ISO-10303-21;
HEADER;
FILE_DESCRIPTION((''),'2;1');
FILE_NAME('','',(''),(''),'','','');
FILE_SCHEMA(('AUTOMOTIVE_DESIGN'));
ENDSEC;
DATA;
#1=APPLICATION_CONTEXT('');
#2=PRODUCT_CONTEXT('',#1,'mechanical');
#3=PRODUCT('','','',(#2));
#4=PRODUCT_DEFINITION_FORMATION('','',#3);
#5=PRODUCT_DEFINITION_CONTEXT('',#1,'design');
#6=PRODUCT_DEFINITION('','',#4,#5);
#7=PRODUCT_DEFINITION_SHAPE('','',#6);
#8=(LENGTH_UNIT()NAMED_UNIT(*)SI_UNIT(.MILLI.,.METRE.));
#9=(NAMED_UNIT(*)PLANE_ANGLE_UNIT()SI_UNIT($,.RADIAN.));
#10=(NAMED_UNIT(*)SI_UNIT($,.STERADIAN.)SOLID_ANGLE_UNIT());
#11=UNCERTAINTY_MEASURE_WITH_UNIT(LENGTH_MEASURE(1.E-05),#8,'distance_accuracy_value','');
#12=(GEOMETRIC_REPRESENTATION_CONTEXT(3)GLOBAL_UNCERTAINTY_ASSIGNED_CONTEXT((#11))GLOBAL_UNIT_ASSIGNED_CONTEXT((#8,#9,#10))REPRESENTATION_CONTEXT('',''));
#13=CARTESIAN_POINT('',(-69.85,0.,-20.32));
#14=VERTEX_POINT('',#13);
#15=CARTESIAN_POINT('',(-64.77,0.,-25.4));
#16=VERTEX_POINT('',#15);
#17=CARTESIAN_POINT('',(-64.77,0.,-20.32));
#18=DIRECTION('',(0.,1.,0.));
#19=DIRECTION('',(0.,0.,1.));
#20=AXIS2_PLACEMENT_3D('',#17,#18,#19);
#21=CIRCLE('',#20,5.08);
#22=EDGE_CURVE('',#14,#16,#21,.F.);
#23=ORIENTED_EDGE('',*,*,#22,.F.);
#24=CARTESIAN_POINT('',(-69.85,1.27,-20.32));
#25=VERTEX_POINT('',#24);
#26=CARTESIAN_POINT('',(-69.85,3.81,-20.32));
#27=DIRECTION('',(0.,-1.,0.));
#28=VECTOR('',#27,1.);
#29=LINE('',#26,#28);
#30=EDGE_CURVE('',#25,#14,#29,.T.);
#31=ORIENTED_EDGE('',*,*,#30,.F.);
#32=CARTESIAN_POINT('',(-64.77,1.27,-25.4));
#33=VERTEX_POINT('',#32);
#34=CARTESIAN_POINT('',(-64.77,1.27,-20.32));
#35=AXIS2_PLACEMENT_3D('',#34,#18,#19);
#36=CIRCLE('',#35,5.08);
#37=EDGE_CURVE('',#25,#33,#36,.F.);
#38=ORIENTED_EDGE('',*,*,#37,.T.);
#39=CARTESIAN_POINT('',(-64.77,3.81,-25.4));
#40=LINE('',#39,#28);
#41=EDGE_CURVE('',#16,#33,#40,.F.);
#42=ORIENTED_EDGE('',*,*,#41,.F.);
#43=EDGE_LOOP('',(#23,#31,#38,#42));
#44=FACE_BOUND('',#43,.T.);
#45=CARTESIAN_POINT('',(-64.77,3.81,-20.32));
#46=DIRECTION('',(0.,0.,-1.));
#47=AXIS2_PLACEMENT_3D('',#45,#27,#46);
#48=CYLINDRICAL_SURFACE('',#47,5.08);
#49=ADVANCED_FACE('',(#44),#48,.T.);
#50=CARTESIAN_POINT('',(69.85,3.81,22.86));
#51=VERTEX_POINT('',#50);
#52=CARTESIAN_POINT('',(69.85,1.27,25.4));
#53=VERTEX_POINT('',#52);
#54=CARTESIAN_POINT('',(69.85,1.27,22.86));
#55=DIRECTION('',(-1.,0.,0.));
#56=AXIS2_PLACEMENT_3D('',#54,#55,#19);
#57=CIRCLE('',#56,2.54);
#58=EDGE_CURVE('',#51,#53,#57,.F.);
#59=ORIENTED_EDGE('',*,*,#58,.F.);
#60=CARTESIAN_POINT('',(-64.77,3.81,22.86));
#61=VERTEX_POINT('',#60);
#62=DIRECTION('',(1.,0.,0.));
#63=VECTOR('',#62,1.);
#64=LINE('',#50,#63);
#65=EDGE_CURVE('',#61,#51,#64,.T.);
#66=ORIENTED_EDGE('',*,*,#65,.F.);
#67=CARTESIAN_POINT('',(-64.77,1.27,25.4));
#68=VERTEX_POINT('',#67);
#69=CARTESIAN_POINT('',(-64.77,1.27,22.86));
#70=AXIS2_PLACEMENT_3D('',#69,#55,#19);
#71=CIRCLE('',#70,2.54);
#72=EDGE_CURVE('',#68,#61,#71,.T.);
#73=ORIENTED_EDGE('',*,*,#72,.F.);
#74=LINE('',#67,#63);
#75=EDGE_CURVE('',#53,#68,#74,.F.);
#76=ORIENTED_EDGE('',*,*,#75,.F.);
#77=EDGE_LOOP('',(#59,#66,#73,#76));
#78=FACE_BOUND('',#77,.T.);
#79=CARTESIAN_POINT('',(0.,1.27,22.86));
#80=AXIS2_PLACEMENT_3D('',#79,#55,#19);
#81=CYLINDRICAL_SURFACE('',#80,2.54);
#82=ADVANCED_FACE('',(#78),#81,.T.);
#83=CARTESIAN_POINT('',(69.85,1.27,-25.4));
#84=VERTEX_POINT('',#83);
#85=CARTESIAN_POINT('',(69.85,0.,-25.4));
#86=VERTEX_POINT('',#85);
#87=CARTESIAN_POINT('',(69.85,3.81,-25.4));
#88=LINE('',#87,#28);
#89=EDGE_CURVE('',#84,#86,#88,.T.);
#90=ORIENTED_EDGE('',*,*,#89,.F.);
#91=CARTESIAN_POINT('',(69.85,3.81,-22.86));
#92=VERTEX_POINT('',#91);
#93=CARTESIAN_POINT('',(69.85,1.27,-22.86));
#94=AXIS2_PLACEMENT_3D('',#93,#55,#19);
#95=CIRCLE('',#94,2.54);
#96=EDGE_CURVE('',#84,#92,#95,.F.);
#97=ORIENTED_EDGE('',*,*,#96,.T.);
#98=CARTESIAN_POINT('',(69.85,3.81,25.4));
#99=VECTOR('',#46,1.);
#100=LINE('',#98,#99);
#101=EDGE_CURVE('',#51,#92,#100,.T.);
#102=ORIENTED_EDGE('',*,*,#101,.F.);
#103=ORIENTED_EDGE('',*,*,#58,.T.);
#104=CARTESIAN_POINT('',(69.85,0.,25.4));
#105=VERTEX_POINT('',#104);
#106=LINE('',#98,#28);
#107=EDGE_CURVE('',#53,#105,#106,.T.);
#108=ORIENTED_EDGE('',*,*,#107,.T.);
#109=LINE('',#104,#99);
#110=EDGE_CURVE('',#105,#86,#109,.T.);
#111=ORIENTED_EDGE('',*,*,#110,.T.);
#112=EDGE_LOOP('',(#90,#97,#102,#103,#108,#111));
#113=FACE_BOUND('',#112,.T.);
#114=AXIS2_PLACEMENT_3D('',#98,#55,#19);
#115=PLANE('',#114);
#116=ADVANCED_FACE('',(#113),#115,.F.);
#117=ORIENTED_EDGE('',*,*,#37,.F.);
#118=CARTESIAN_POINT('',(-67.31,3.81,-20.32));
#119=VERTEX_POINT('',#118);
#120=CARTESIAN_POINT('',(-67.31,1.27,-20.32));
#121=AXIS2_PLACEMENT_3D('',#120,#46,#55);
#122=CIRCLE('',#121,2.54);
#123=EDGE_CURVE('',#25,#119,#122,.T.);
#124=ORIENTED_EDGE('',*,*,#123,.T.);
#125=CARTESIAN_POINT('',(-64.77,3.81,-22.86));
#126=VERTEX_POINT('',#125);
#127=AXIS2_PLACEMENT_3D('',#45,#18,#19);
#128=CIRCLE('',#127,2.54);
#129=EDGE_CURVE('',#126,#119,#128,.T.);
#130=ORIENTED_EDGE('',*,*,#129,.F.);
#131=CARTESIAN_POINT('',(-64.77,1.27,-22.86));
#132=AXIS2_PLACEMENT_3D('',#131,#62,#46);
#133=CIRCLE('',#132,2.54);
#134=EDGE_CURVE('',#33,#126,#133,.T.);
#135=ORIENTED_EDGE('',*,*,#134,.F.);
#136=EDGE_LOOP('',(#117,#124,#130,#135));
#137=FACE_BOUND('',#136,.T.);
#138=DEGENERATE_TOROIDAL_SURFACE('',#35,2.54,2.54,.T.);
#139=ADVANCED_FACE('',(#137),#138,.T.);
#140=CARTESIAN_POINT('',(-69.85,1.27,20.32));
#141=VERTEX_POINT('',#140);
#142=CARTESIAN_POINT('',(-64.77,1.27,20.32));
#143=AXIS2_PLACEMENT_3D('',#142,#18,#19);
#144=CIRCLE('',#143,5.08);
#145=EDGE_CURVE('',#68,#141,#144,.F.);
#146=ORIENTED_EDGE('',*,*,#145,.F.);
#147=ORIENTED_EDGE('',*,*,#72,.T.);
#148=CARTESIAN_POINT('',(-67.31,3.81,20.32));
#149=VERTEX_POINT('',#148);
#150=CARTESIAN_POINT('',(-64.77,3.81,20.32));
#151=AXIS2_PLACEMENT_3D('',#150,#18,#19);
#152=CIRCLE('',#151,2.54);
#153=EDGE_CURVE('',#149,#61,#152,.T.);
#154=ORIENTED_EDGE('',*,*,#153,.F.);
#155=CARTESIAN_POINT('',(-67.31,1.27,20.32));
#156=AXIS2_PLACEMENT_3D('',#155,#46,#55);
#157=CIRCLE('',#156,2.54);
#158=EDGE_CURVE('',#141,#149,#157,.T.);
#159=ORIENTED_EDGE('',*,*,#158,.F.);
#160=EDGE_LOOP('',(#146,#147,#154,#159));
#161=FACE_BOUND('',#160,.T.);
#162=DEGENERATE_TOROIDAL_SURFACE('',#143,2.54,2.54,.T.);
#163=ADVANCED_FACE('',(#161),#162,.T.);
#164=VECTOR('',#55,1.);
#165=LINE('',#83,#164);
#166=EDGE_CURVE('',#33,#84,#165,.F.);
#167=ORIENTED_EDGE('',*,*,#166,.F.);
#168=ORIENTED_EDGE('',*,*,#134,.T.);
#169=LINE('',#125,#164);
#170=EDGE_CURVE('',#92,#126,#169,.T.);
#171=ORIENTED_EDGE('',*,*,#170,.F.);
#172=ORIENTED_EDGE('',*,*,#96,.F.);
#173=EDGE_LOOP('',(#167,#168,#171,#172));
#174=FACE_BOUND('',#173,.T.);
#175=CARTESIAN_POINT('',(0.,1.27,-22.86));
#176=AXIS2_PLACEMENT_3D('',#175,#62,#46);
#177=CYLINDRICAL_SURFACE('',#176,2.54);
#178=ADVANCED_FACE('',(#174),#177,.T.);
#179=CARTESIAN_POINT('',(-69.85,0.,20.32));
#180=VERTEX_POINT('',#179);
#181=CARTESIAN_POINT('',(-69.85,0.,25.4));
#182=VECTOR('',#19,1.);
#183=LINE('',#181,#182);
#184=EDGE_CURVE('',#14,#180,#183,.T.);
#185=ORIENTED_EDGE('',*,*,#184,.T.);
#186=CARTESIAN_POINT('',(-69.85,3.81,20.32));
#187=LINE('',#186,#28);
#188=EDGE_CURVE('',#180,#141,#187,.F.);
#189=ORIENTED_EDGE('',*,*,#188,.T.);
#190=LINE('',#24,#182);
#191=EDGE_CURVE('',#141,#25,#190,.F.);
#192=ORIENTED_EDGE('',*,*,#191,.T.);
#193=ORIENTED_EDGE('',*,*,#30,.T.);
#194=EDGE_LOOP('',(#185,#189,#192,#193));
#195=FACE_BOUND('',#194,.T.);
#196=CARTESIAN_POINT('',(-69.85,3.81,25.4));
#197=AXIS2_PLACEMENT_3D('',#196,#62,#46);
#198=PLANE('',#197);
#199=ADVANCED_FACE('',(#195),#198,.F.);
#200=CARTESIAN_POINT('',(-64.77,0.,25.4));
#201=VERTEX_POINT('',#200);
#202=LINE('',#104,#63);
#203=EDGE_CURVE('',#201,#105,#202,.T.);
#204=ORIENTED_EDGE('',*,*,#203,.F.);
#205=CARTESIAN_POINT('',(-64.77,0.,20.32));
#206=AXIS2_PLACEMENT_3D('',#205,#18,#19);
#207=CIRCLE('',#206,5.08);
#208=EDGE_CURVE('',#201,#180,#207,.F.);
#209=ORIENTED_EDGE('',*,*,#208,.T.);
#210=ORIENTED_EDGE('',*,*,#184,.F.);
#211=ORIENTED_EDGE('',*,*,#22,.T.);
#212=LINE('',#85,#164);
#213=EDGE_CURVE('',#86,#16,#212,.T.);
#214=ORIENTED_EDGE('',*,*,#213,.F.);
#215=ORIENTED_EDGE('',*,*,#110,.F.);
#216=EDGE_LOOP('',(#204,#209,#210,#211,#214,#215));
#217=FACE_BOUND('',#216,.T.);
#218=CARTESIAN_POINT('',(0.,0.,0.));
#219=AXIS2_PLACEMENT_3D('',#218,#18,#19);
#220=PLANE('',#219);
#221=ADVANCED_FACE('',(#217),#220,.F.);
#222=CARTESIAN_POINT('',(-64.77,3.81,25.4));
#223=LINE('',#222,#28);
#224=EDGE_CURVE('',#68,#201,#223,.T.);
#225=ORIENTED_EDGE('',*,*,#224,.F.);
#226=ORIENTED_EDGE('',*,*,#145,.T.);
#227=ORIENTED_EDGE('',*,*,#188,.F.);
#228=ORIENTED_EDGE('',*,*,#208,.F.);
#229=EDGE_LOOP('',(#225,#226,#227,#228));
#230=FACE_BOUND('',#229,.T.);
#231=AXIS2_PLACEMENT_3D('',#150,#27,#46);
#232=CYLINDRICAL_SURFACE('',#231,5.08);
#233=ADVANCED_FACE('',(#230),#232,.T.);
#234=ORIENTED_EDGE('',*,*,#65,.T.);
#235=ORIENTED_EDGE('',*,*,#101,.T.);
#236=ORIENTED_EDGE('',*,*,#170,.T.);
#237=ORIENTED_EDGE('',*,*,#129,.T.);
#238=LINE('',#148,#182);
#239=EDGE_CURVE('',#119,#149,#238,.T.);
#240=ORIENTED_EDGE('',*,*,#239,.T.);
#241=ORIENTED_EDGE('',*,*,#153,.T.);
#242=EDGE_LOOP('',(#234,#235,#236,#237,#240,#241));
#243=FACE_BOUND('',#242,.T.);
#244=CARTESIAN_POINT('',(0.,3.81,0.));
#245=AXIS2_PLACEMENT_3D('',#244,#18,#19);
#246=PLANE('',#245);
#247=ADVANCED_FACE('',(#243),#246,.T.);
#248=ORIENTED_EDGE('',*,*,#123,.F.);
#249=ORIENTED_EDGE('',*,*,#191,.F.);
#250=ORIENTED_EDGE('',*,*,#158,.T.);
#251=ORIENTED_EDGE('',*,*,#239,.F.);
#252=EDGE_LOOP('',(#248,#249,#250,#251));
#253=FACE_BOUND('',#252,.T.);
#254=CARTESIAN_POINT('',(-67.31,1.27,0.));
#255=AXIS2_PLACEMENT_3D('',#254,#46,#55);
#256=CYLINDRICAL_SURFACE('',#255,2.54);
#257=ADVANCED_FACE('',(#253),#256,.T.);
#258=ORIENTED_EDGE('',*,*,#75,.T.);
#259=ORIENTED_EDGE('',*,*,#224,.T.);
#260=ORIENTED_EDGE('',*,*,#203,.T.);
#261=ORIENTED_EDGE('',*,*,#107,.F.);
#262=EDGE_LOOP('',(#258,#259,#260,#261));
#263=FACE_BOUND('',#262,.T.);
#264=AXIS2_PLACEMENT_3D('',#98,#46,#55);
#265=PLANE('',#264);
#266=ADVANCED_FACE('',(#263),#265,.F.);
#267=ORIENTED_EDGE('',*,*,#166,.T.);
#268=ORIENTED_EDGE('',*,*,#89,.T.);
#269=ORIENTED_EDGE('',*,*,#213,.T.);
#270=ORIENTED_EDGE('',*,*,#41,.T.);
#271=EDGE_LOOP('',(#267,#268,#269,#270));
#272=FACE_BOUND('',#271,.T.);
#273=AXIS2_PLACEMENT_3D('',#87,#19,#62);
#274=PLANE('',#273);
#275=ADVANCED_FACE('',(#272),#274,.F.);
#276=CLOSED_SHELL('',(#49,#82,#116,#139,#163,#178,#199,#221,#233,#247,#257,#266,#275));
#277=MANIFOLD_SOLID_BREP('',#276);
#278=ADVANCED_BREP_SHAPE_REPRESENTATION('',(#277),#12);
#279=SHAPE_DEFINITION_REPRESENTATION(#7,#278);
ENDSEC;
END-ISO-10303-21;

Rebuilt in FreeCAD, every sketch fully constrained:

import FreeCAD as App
import Part
import Sketcher

V = App.Vector
Q = App.Units.Quantity


def edges_at(feature, points):
    """Names of the edges that pass closest to the given points."""
    edges = feature.Shape.Edges
    near = lambda p: min(range(len(edges)), key=lambda i: edges[i].distToShape(Part.Vertex(*p))[0])
    return sorted({f"Edge{near(p) + 1}" for p in points})

doc = App.newDocument("Part")
body = doc.addObject("PartDesign::Body", "Body")

sketch1 = body.newObject("Sketcher::SketchObject", "Sketch")
sketch1.AttachmentSupport = (doc.getObject("XZ_Plane"), [""])
sketch1.MapMode = "FlatFace"
sketch1.addGeometry([
    Part.LineSegment(V(-70, -25, 0), V(-70, 25, 0)),
    Part.LineSegment(V(-70, 25, 0), V(70, 25, 0)),
    Part.LineSegment(V(70, 25, 0), V(70, -25, 0)),
    Part.LineSegment(V(70, -25, 0), V(-70, -25, 0)),
], False)
sketch1.addConstraint([
    Sketcher.Constraint("Coincident", 0, 2, 1, 1),
    Sketcher.Constraint("Coincident", 1, 2, 2, 1),
    Sketcher.Constraint("Coincident", 2, 2, 3, 1),
    Sketcher.Constraint("Coincident", 3, 2, 0, 1),
    Sketcher.Constraint("Vertical", 0),
    Sketcher.Constraint("Horizontal", 1),
    Sketcher.Constraint("Vertical", 2),
    Sketcher.Constraint("Horizontal", 3),
    Sketcher.Constraint("Symmetric", 0, 2, 2, 2, -1, 1),
    Sketcher.Constraint("DistanceY", 0, 1, 0, 2, Q("2 in")),
    Sketcher.Constraint("DistanceX", 1, 1, 1, 2, Q("5.5 in")),
])
pad1 = body.newObject("PartDesign::Pad", "Pad")
pad1.Profile = sketch1
pad1.Length = Q("0.15 in")
pad1.Reversed = True
doc.recompute()

fillet = body.newObject("PartDesign::Fillet", "Fillet")
fillet.Base = (pad1, edges_at(pad1, [(-69.85, 1.905, -25.4), (-69.85, 1.905, 25.4)]))
fillet.Radius = Q("0.2 in")
doc.recompute()

fillet2 = body.newObject("PartDesign::Fillet", "Fillet001")
fillet2.Base = (fillet, edges_at(fillet, [
    (-69.85, 3.81, 0),
    (2.54, 3.81, -25.4),
    (2.54, 3.81, 25.4),
    (-68.362, 3.81, 23.912),
    (-68.362, 3.81, -23.912),
]))
fillet2.Radius = Q("0.1 in")

doc.recompute()
